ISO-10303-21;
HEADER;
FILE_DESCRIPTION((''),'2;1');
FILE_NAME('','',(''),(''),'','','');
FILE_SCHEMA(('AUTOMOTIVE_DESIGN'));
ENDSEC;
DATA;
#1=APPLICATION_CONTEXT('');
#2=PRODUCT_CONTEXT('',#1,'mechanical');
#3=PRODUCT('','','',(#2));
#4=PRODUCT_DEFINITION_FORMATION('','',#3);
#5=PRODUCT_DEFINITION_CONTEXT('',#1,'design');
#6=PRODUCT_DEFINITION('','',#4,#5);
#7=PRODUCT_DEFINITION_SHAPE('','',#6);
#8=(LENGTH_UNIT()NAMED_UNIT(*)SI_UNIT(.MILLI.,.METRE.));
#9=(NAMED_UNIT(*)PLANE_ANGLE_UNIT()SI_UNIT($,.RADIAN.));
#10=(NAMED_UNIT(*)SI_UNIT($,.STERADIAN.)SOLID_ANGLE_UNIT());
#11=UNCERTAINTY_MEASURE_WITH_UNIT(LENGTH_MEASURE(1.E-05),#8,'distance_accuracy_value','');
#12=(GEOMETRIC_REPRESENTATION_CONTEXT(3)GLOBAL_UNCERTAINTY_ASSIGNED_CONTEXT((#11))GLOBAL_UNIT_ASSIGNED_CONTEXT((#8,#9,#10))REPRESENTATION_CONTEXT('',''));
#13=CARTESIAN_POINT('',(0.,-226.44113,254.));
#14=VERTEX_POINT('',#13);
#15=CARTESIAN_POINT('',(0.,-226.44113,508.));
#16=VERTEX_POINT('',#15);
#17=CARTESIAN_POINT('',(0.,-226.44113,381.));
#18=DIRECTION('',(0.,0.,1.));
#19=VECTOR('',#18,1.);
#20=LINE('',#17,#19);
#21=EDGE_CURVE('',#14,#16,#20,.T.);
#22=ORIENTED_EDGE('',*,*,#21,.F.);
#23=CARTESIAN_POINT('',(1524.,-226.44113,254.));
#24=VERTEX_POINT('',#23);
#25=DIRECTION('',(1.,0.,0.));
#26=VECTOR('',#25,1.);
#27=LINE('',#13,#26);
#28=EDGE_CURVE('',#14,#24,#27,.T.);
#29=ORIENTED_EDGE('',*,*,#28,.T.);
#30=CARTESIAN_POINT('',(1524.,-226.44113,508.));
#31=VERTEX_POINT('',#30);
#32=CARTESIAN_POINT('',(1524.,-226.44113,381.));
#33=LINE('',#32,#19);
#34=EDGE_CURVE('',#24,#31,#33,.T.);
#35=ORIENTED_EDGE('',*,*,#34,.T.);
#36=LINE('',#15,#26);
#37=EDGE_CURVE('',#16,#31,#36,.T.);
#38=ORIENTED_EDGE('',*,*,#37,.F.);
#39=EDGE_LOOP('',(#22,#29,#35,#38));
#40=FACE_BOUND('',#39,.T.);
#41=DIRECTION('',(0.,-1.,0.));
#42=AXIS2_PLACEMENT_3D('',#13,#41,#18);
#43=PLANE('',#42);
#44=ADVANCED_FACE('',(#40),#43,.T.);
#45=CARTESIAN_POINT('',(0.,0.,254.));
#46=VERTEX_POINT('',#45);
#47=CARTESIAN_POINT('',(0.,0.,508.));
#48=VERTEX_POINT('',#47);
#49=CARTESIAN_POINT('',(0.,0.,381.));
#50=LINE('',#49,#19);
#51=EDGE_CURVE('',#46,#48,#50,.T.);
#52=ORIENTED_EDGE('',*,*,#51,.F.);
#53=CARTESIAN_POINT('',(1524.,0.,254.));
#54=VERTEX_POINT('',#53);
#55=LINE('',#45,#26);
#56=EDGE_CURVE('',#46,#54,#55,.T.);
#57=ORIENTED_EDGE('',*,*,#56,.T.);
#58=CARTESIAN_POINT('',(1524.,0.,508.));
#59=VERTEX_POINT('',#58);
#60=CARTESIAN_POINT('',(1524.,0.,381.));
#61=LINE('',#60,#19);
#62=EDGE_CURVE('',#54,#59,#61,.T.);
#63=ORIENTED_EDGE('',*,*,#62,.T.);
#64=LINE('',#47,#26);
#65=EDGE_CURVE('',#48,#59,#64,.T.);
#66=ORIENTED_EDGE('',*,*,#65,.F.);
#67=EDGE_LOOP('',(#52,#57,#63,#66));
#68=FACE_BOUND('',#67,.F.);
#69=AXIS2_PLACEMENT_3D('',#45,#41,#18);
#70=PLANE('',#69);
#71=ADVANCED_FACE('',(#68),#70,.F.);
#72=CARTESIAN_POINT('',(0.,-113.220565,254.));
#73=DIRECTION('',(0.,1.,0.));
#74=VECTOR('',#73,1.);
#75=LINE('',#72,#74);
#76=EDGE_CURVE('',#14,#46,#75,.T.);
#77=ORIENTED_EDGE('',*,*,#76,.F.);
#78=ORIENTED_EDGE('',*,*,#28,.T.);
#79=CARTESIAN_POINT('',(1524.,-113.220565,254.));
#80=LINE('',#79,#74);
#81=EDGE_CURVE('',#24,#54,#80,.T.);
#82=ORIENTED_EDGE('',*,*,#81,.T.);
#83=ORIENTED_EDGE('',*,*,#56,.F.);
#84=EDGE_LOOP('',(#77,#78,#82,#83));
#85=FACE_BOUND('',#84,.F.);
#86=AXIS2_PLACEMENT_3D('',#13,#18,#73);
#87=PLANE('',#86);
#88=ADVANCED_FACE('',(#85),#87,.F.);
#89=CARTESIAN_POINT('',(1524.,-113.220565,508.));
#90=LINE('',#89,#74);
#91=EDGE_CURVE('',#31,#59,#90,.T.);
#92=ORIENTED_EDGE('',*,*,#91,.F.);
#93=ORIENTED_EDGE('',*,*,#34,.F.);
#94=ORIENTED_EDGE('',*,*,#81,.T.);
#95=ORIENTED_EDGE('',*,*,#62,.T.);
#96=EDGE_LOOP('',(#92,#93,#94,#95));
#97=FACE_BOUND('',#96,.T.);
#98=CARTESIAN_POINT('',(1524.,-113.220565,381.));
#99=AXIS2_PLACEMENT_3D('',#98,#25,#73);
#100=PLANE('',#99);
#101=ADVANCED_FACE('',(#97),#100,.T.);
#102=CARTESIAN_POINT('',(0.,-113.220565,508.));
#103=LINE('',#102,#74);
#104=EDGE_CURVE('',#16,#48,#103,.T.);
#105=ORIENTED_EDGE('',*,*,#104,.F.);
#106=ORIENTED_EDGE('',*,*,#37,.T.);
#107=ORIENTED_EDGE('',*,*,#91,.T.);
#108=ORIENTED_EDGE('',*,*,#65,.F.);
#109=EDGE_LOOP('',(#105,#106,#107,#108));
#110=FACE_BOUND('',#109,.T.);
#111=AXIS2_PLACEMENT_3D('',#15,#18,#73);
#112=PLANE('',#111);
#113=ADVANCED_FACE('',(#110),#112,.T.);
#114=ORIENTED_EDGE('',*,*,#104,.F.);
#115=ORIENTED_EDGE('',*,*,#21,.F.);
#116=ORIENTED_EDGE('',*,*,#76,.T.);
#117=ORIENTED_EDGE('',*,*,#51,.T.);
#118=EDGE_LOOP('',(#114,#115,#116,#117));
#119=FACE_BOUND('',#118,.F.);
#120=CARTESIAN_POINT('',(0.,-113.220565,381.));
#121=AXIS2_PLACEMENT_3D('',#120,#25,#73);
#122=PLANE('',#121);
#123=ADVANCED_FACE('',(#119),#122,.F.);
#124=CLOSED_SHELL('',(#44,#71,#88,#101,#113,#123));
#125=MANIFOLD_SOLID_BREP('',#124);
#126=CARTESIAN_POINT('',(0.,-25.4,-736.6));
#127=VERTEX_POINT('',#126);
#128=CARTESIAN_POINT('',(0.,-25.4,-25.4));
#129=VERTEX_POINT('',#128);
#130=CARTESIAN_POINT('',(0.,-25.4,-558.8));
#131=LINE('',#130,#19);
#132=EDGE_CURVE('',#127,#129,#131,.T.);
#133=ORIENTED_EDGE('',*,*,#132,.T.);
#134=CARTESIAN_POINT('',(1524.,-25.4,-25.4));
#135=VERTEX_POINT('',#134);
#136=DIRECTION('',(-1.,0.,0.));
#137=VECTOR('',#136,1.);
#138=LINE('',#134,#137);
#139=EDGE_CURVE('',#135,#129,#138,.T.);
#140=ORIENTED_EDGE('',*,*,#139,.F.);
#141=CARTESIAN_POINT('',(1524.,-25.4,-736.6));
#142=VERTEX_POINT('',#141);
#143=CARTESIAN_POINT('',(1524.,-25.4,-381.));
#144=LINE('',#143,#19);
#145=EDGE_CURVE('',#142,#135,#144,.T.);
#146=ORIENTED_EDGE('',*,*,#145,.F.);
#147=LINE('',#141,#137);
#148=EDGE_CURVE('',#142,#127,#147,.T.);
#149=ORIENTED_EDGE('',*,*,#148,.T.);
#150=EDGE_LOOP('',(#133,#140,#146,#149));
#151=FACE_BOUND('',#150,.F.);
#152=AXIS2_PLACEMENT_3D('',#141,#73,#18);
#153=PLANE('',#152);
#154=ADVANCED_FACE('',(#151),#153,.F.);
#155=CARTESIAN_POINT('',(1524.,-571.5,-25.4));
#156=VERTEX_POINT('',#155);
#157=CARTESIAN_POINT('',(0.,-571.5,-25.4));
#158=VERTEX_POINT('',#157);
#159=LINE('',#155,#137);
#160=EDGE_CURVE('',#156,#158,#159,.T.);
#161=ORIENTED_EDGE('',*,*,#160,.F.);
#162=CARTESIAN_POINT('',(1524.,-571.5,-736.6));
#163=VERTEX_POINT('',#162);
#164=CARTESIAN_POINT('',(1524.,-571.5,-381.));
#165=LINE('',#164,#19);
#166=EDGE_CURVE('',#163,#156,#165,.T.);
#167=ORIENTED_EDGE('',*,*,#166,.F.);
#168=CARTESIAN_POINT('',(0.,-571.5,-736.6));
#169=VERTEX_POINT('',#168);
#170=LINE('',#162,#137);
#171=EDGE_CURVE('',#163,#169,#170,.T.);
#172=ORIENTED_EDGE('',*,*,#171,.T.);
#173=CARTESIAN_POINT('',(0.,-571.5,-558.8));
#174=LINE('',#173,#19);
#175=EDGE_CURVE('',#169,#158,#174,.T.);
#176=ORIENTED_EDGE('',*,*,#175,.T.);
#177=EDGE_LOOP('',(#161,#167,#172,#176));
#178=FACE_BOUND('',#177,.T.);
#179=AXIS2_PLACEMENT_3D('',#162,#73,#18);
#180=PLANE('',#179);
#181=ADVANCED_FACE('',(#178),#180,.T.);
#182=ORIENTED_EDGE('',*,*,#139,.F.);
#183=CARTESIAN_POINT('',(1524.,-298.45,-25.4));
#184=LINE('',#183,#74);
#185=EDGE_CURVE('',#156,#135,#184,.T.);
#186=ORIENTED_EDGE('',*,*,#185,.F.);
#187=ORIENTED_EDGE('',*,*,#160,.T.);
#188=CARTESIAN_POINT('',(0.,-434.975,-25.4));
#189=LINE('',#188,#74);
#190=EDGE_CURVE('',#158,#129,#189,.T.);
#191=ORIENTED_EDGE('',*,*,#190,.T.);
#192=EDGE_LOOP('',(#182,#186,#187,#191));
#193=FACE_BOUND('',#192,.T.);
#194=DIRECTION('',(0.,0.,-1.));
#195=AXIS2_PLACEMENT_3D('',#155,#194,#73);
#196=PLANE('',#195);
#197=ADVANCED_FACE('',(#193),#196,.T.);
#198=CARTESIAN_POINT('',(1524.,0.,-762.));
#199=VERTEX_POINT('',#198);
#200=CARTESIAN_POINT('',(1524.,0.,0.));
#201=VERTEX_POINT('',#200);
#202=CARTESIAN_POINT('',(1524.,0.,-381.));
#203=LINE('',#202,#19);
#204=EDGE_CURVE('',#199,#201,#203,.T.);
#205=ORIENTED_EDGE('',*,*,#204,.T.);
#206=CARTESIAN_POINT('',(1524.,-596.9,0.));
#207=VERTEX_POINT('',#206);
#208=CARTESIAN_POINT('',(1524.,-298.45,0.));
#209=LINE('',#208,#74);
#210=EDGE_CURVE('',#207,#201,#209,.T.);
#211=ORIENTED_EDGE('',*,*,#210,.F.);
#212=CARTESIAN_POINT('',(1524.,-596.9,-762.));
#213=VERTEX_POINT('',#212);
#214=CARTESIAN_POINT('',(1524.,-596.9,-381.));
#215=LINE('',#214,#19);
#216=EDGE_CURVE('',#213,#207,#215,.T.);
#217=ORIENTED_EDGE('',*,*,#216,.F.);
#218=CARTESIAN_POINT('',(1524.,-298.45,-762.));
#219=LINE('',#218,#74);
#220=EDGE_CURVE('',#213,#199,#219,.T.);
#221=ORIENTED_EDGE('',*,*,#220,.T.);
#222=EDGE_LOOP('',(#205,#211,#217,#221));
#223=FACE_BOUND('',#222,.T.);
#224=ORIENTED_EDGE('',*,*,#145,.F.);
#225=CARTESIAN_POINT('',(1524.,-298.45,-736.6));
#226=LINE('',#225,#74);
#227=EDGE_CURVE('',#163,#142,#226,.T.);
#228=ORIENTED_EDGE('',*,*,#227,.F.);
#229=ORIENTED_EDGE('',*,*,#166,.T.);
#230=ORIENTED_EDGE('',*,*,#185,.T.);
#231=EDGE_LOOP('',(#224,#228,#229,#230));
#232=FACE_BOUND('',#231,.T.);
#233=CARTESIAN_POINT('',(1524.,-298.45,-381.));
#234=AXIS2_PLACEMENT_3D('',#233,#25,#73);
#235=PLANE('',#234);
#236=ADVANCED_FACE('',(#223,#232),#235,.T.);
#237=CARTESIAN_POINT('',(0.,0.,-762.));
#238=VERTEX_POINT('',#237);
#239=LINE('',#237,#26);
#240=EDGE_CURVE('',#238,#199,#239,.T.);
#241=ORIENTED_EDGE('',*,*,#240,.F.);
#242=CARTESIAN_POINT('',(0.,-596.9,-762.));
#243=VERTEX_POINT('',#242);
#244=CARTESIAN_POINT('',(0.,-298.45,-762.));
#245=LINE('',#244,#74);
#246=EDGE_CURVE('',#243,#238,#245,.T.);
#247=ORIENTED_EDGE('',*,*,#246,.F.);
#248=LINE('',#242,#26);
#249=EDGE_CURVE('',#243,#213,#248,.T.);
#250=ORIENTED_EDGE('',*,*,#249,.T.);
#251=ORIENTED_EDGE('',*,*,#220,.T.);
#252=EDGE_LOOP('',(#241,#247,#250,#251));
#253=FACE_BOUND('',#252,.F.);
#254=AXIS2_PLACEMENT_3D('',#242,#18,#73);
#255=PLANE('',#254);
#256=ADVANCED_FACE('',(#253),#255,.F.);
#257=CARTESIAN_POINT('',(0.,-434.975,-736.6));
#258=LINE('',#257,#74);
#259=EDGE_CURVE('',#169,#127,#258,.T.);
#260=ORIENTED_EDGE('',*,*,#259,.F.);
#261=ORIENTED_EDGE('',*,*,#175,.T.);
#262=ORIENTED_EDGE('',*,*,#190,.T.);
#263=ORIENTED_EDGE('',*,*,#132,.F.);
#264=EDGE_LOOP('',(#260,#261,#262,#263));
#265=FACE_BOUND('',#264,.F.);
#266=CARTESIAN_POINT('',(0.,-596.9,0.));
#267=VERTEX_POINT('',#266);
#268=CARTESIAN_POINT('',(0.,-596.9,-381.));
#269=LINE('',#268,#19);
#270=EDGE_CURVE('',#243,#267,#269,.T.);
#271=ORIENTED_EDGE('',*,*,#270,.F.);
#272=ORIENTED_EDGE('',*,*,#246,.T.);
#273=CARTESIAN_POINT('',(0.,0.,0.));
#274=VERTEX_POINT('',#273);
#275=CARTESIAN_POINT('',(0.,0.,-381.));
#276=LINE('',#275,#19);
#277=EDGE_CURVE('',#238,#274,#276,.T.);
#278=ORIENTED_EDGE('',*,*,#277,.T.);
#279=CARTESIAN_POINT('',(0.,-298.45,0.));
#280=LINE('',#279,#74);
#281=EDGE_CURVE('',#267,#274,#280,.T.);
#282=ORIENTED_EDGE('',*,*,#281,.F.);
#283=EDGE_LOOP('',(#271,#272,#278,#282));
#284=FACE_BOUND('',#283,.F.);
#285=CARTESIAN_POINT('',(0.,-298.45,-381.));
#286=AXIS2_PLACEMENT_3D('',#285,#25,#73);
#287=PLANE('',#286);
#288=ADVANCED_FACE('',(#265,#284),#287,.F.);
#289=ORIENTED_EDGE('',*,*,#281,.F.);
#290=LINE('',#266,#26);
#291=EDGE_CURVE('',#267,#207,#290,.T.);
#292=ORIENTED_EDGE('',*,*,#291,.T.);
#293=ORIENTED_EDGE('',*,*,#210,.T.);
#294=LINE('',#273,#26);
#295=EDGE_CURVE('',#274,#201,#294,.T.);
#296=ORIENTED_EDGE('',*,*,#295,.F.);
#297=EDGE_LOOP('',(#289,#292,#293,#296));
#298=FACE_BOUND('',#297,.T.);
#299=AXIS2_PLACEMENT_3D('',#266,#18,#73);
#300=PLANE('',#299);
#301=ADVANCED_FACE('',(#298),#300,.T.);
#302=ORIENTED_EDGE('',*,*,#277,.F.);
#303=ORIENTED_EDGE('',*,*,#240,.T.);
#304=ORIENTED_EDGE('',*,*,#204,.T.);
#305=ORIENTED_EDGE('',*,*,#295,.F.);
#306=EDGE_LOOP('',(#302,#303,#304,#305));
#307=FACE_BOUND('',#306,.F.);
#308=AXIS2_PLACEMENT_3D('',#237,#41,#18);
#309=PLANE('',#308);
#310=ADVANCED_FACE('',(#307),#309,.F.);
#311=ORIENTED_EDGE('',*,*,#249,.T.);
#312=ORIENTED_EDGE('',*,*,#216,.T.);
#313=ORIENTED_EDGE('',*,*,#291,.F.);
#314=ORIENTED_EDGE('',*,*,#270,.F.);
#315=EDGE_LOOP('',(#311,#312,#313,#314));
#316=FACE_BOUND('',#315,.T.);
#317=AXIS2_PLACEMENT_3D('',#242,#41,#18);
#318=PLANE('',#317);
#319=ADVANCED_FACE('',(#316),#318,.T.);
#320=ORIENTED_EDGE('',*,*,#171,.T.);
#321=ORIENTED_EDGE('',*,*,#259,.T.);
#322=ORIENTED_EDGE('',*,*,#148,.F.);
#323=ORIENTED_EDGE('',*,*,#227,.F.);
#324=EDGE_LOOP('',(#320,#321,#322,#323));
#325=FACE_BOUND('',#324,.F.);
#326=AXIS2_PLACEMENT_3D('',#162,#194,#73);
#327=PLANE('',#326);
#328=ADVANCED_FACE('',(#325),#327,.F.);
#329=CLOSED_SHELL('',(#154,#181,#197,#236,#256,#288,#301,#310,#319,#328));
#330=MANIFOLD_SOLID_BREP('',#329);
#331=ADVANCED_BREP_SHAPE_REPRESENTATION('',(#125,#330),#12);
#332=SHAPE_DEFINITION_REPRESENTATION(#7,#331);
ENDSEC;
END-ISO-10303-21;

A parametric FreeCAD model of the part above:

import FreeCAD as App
import Part
import Sketcher
from FreeCAD import Vector
Q = App.Units.Quantity


def add_polygon(sketch, points):
    """Adds a closed chain of lines whose ends are joined by coincident constraints."""
    first, n = sketch.GeometryCount, len(points)
    for a, b in zip(points, points[1:] + points[:1]):
        sketch.addGeometry(Part.LineSegment(App.Vector(*a, 0), App.Vector(*b, 0)), False)
    for i in range(n):
        sketch.addConstraint(Sketcher.Constraint("Coincident", first + i, 2, first + (i + 1) % n, 1))

doc = App.newDocument("Part")
params = doc.addObject("Spreadsheet::Sheet", "Params")
for row, (alias, value) in enumerate([
    ("sketch1_height", "30 in"),
    ("sketch1_height2", "10 in"),
    ("sketch1_width", "23.5 in"),
    ("pad1_length", "60 in"),
    ("sketch2_height", "28 in"),
    ("sketch2_width", "21.5 in"),
    ("pocket1_length", "1693.74904 mm"),
], start=1):
    params.set(f"A{row}", alias)
    params.set(f"B{row}", "=" + value)
    params.setAlias(f"B{row}", alias)

body = doc.addObject("PartDesign::Body", "Body")
body.AllowCompound = True

sketch1 = body.newObject("Sketcher::SketchObject", "Sketch")
sketch1.AttachmentSupport = (doc.getObject("YZ_Plane"), [""])
sketch1.MapMode = "FlatFace"
add_polygon(sketch1, [(-596.9, 0), (-596.9, -762), (0, -762), (0, 0)])
add_polygon(sketch1, [(-226.44113, 508), (-226.44113, 254), (0, 254), (0, 508)])
sketch1.addConstraint([
    Sketcher.Constraint("Vertical", 0),
    Sketcher.Constraint("Horizontal", 1),
    Sketcher.Constraint("Vertical", 2),
    Sketcher.Constraint("Horizontal", 3),
    Sketcher.Constraint("Vertical", 4),
    Sketcher.Constraint("Horizontal", 5),
    Sketcher.Constraint("Vertical", 6),
    Sketcher.Constraint("Horizontal", 7),
    Sketcher.Constraint("Coincident", 2, 2, -1, 1),
    Sketcher.Constraint("PointOnObject", 5, 2, -2),
    Sketcher.Constraint("DistanceY", 0, 2, 0, 1, Q("30 in")),
    Sketcher.Constraint("DistanceY", 4, 2, 4, 1, Q("10 in")),
    Sketcher.Constraint("DistanceX", 1, 1, 1, 2, Q("23.5 in")),
    Sketcher.Constraint("DistanceY", -1, 1, 4, 2, Q("10 in")),
    Sketcher.Constraint("DistanceX", 5, 1, 5, 2, 226.44113),
])
sketch1.setExpression("Constraints[18]", "Params.sketch1_height")
sketch1.setExpression("Constraints[19]", "Params.sketch1_height2")
sketch1.setExpression("Constraints[20]", "Params.sketch1_width")
pad1 = body.newObject("PartDesign::Pad", "Pad")
pad1.Profile = sketch1
pad1.setExpression("Length", "Params.pad1_length")

sketch2 = body.newObject("Sketcher::SketchObject", "Sketch001")
sketch2.AttachmentSupport = (doc.getObject("YZ_Plane"), [""])
sketch2.MapMode = "FlatFace"
sketch2.AttachmentOffset = App.Placement(Vector(0, 0, 60 * 25.4), App.Rotation())
add_polygon(sketch2, [(-571.5, -25.4), (-571.5, -736.6), (-25.4, -736.6), (-25.4, -25.4)])
sketch2.addConstraint([
    Sketcher.Constraint("Vertical", 0),
    Sketcher.Constraint("Horizontal", 1),
    Sketcher.Constraint("Vertical", 2),
    Sketcher.Constraint("Horizontal", 3),
    Sketcher.Constraint("DistanceY", 0, 2, 0, 1, Q("28 in")),
    Sketcher.Constraint("DistanceX", 1, 1, 1, 2, Q("21.5 in")),
    Sketcher.Constraint("DistanceY", 0, 2, -1, 1, Q("29 in")),
    Sketcher.Constraint("DistanceX", 1, 2, -1, 1, Q("1 in")),
])
sketch2.setExpression("Constraints[8]", "Params.sketch2_height")
sketch2.setExpression("Constraints[9]", "Params.sketch2_width")
pocket1 = body.newObject("PartDesign::Pocket", "Pocket")
pocket1.Profile = sketch2
pocket1.setExpression("Length", "Params.pocket1_length")

doc.recompute()
